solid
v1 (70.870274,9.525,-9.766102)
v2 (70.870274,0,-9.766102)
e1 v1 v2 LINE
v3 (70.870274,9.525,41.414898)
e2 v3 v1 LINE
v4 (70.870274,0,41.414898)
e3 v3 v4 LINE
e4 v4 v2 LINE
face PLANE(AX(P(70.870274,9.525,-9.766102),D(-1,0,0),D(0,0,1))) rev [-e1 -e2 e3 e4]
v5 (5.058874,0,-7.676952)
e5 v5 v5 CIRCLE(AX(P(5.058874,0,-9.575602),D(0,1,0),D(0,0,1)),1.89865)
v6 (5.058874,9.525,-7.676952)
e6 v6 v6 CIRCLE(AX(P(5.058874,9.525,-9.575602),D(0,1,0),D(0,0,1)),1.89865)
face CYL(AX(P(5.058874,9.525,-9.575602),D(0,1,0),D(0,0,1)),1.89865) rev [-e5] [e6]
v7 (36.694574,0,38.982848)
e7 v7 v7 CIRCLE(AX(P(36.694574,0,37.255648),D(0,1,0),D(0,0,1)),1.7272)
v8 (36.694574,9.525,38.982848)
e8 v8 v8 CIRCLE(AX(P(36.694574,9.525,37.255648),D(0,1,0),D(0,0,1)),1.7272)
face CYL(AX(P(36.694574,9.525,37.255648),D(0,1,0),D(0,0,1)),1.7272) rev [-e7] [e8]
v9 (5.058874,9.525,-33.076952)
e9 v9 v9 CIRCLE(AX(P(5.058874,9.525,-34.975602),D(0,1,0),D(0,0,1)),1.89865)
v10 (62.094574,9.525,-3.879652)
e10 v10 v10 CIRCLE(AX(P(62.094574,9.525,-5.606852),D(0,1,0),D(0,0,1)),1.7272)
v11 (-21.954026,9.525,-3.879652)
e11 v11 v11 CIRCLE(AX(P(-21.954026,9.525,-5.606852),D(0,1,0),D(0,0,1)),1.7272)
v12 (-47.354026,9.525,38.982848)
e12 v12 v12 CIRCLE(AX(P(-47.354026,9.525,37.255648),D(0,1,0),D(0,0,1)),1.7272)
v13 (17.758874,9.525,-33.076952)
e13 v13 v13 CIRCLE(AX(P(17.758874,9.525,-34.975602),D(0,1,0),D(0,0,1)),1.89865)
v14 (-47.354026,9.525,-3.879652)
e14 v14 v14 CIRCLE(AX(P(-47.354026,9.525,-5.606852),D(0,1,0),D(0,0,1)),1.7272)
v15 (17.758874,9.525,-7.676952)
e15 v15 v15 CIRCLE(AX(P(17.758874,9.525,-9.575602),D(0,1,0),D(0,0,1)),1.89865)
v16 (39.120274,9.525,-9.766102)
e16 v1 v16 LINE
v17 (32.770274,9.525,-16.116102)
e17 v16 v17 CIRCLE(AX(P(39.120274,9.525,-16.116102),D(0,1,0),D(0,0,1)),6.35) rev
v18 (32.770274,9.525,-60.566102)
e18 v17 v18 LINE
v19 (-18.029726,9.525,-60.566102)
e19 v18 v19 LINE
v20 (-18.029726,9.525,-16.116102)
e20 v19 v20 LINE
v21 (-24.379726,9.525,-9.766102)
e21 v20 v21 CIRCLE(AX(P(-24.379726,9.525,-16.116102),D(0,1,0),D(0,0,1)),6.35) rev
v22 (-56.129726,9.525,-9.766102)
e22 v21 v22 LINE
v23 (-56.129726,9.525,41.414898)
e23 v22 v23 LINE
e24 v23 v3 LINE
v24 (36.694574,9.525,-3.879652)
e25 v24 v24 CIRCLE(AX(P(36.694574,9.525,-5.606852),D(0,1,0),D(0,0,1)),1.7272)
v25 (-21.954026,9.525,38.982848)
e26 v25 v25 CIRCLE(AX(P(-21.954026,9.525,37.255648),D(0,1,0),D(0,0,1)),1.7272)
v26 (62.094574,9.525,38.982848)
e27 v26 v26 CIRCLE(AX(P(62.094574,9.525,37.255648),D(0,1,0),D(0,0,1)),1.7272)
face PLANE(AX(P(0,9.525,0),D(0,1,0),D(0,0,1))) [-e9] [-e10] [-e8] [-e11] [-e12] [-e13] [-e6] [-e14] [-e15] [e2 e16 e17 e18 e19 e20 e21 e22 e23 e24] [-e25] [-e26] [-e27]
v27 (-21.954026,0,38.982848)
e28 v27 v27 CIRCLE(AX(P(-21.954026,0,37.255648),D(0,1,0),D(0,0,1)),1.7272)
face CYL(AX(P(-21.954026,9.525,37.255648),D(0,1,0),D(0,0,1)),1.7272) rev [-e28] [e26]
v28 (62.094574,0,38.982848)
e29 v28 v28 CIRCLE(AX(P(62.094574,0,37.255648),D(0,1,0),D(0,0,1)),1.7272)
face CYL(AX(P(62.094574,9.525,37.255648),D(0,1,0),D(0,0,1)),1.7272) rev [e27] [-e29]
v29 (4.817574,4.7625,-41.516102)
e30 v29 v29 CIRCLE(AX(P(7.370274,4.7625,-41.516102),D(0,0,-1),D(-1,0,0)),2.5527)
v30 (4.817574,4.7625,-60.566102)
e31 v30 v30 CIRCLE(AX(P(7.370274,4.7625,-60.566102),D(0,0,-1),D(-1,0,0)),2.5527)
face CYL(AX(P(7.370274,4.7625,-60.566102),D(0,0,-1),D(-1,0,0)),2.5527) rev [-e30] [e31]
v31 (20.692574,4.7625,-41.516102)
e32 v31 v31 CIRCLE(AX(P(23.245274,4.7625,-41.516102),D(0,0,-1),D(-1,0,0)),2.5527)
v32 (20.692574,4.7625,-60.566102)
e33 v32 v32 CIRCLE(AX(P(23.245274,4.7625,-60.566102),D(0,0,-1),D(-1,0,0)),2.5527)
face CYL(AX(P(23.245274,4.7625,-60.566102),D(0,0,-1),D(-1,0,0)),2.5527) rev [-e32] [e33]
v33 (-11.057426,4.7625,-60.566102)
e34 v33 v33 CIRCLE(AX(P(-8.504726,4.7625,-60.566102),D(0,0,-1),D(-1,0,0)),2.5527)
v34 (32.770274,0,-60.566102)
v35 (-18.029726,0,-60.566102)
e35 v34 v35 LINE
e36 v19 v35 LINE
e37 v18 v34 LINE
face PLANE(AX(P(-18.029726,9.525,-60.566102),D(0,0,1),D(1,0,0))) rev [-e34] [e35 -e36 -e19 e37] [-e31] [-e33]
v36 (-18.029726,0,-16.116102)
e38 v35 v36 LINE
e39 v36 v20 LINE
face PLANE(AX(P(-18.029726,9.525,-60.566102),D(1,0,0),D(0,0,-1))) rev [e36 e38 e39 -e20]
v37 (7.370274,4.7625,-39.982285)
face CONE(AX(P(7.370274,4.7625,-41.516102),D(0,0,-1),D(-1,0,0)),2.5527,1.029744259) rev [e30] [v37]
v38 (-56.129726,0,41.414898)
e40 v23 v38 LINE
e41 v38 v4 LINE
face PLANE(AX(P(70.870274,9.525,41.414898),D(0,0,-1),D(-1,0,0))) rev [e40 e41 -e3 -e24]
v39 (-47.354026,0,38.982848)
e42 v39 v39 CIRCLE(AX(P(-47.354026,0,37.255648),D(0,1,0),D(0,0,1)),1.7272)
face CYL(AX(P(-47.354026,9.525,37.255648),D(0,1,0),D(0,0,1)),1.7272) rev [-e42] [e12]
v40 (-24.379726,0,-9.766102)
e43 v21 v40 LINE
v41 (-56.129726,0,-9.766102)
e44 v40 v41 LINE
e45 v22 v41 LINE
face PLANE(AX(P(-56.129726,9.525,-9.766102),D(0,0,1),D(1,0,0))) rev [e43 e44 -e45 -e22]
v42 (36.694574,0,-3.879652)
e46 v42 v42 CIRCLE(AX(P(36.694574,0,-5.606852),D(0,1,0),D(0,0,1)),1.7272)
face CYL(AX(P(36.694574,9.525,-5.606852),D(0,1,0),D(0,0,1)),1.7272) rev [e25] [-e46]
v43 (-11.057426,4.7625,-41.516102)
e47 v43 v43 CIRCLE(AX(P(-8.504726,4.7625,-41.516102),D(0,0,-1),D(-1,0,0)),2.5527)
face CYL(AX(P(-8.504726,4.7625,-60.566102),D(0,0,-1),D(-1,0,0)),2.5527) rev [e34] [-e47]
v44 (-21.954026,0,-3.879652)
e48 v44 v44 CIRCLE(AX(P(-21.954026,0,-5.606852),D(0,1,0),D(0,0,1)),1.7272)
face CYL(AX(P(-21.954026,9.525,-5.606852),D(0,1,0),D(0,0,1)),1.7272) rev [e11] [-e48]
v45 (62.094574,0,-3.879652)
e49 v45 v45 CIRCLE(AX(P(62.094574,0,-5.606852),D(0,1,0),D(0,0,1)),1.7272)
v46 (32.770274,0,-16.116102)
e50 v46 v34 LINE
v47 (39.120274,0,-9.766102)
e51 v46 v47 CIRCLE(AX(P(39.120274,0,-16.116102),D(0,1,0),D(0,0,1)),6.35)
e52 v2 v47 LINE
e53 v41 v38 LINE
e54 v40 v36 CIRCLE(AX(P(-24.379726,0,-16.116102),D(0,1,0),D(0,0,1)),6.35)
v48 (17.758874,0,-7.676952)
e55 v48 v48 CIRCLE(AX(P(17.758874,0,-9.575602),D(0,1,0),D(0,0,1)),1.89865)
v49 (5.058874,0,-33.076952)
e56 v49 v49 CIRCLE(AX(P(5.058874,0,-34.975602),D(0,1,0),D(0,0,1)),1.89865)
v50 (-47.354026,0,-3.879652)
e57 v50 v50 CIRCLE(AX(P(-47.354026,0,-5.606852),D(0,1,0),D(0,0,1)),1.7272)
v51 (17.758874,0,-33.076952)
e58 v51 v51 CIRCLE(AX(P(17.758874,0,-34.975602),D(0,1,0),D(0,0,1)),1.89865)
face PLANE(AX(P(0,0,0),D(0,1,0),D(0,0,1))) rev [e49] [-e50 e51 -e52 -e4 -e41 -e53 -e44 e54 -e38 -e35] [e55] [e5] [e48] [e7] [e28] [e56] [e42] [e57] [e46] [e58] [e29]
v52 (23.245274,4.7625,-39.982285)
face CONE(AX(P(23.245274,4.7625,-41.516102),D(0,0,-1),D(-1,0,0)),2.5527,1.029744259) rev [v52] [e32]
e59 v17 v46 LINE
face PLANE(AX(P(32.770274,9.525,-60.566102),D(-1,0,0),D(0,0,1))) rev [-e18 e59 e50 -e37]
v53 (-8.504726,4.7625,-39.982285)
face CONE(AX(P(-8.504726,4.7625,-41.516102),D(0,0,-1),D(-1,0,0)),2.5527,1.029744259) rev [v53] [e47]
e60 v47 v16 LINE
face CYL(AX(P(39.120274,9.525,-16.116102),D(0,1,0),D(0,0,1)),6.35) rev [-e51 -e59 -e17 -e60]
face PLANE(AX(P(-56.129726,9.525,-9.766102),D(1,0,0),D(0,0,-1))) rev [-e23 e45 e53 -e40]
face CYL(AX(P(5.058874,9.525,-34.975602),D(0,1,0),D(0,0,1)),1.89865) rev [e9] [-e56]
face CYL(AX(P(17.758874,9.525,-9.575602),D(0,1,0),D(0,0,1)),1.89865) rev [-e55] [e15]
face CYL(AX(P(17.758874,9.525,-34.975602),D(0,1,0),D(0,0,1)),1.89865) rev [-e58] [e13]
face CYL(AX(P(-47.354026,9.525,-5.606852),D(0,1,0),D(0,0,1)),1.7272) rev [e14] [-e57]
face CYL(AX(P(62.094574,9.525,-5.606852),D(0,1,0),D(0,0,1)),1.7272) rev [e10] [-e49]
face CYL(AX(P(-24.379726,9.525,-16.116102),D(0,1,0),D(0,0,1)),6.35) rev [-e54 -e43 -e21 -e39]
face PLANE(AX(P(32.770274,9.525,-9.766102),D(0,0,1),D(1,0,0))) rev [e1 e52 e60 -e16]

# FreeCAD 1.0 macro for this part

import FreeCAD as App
import Part
import Sketcher
from FreeCAD import Vector
Q = App.Units.Quantity


def edges_at(feature, points):
    """Names of the edges that pass closest to the given points."""
    edges = feature.Shape.Edges
    near = lambda p: min(range(len(edges)), key=lambda i: edges[i].distToShape(Part.Vertex(*p))[0])
    return sorted({f"Edge{near(p) + 1}" for p in points})

doc = App.newDocument("Part")
body = doc.addObject("PartDesign::Body", "Body")

sketch1 = body.newObject("Sketcher::SketchObject", "Sketch")
sketch1.AttachmentSupport = (doc.getObject("XZ_Plane"), [""])
sketch1.MapMode = "FlatFace"
sketch1.addGeometry([
    Part.LineSegment(Vector(70.870274, -9.766102, 0), Vector(32.770274, -9.766102, 0)),
    Part.LineSegment(Vector(32.770274, -9.766102, 0), Vector(32.770274, -60.566102, 0)),
    Part.LineSegment(Vector(32.770274, -60.566102, 0), Vector(-18.029726, -60.566102, 0)),
    Part.LineSegment(Vector(-18.029726, -60.566102, 0), Vector(-18.029726, -9.766102, 0)),
    Part.LineSegment(Vector(-18.029726, -9.766102, 0), Vector(-56.129726, -9.766102, 0)),
    Part.LineSegment(Vector(-56.129726, -9.766102, 0), Vector(-56.129726, 41.414898, 0)),
    Part.LineSegment(Vector(-56.129726, 41.414898, 0), Vector(70.870274, 41.414898, 0)),
    Part.LineSegment(Vector(70.870274, 41.414898, 0), Vector(70.870274, -9.766102, 0)),
], False)
sketch1.addConstraint([
    Sketcher.Constraint("Coincident", 0, 2, 1, 1),
    Sketcher.Constraint("Coincident", 1, 2, 2, 1),
    Sketcher.Constraint("Coincident", 2, 2, 3, 1),
    Sketcher.Constraint("Coincident", 3, 2, 4, 1),
    Sketcher.Constraint("Coincident", 4, 2, 5, 1),
    Sketcher.Constraint("Coincident", 5, 2, 6, 1),
    Sketcher.Constraint("Coincident", 6, 2, 7, 1),
    Sketcher.Constraint("Coincident", 7, 2, 0, 1),
    Sketcher.Constraint("Horizontal", 0),
    Sketcher.Constraint("Vertical", 1),
    Sketcher.Constraint("Horizontal", 2),
    Sketcher.Constraint("Vertical", 3),
    Sketcher.Constraint("Horizontal", 4),
    Sketcher.Constraint("Vertical", 5),
    Sketcher.Constraint("Horizontal", 6),
    Sketcher.Constraint("Vertical", 7),
    Sketcher.Constraint("Horizontal", 0, 2, 3, 2),
    Sketcher.Constraint("Equal", 0, 4),
    Sketcher.Constraint("Equal", 2, 1),
    Sketcher.Constraint("DistanceX", 2, 2, 2, 1, Q("2 in")),
    Sketcher.Constraint("DistanceX", 6, 1, 6, 2, Q("5 in")),
    Sketcher.Constraint("DistanceY", 5, 1, 5, 2, Q("2.015 in")),
    Sketcher.Constraint("DistanceY", 0, 2, -1, 1, Q("9.766102 mm")),
    Sketcher.Constraint("DistanceX", -1, 1, 0, 2, Q("32.770274 mm")),
])
pad1 = body.newObject("PartDesign::Pad", "Pad")
pad1.Profile = sketch1
pad1.Length = Q("0.375 in")
pad1.Reversed = True

sketch2 = body.newObject("Sketcher::SketchObject", "Sketch001")
sketch2.AttachmentSupport = (doc.getObject("XZ_Plane"), [""])
sketch2.MapMode = "FlatFace"
sketch2.AttachmentOffset = App.Placement(Vector(0, 0, -0.375 * 25.4), App.Rotation())
sketch2.addGeometry([
    Part.Circle(Vector(-47.354026, -5.606852, 0), Vector(0, 0, 1), 1.7272),
    Part.Circle(Vector(-47.354026, 37.255648, 0), Vector(0, 0, 1), 1.7272),
    Part.Circle(Vector(-21.954026, 37.255648, 0), Vector(0, 0, 1), 1.7272),
    Part.Circle(Vector(-21.954026, -5.606852, 0), Vector(0, 0, 1), 1.7272),
    Part.Circle(Vector(62.094574, -5.606852, 0), Vector(0, 0, 1), 1.7272),
    Part.Circle(Vector(62.094574, 37.255648, 0), Vector(0, 0, 1), 1.7272),
    Part.Circle(Vector(36.694574, 37.255648, 0), Vector(0, 0, 1), 1.7272),
    Part.Circle(Vector(36.694574, -5.606852, 0), Vector(0, 0, 1), 1.7272),
], False)
sketch2.addConstraint([
    Sketcher.Constraint("Equal", 0, 1),
    Sketcher.Constraint("Equal", 1, 2),
    Sketcher.Constraint("Equal", 2, 3),
    Sketcher.Constraint("Equal", 3, 4),
    Sketcher.Constraint("Equal", 4, 5),
    Sketcher.Constraint("Equal", 5, 6),
    Sketcher.Constraint("Equal", 6, 7),
    Sketcher.Constraint("Horizontal", 1, 3, 2, 3),
    Sketcher.Constraint("Horizontal", 0, 3, 3, 3),
    Sketcher.Constraint("Horizontal", 3, 3, 4, 3),
    Sketcher.Constraint("Horizontal", 2, 3, 5, 3),
    Sketcher.Constraint("Horizontal", 5, 3, 6, 3),
    Sketcher.Constraint("Horizontal", 4, 3, 7, 3),
    Sketcher.Constraint("Vertical", 0, 3, 1, 3),
    Sketcher.Constraint("Vertical", 2, 3, 3, 3),
    Sketcher.Constraint("Vertical", 4, 3, 5, 3),
    Sketcher.Constraint("Vertical", 6, 3, 7, 3),
    Sketcher.Constraint("Diameter", 0, Q("0.136 in")),
    Sketcher.Constraint("DistanceX", 1, 3, 2, 3, Q("1 in")),
    Sketcher.Constraint("DistanceX", 6, 3, 5, 3, Q("1 in")),
    Sketcher.Constraint("DistanceY", 0, 3, 1, 3, Q("1.6875 in")),
    Sketcher.Constraint("DistanceX", 3, 3, 4, 3, Q("3.309 in")),
    Sketcher.Constraint("DistanceY", 0, 3, -1, 1, Q("5.606852 mm")),
    Sketcher.Constraint("DistanceX", 0, 3, -1, 1, Q("47.354026 mm")),
])
doc.recompute()
hole = body.newObject("PartDesign::Hole", "Hole")
hole.Profile = sketch2
hole.ThreadType = "None"
hole.Diameter = Q("0.136 in")
hole.DepthType = "ThroughAll"
hole.Reversed = True

sketch3 = body.newObject("Sketcher::SketchObject", "Sketch002")
sketch3.AttachmentSupport = (doc.getObject("XZ_Plane"), [""])
sketch3.MapMode = "FlatFace"
sketch3.AttachmentOffset = App.Placement(Vector(0, 0, -0.375 * 25.4), App.Rotation())
sketch3.addGeometry([
    Part.Circle(Vector(5.058874, -34.975602, 0), Vector(0, 0, 1), 1.89865),
    Part.Circle(Vector(17.758874, -34.975602, 0), Vector(0, 0, 1), 1.89865),
    Part.Circle(Vector(5.058874, -9.575602, 0), Vector(0, 0, 1), 1.89865),
    Part.Circle(Vector(17.758874, -9.575602, 0), Vector(0, 0, 1), 1.89865),
], False)
sketch3.addConstraint([
    Sketcher.Constraint("Equal", 0, 1),
    Sketcher.Constraint("Equal", 1, 2),
    Sketcher.Constraint("Equal", 2, 3),
    Sketcher.Constraint("Horizontal", 0, 3, 1, 3),
    Sketcher.Constraint("Horizontal", 2, 3, 3, 3),
    Sketcher.Constraint("Vertical", 0, 3, 2, 3),
    Sketcher.Constraint("Vertical", 1, 3, 3, 3),
    Sketcher.Constraint("DistanceY", 0, 3, 2, 3, Q("1 in")),
    Sketcher.Constraint("Diameter", 0, Q("0.1495 in")),
    Sketcher.Constraint("DistanceX", 0, 3, 1, 3, Q("0.5 in")),
    Sketcher.Constraint("DistanceY", 0, 3, -1, 1, Q("34.975602 mm")),
    Sketcher.Constraint("DistanceX", -1, 1, 0, 3, Q("5.058874 mm")),
])
doc.recompute()
hole2 = body.newObject("PartDesign::Hole", "Hole001")
hole2.Profile = sketch3
hole2.ThreadType = "None"
hole2.Diameter = Q("0.1495 in")
hole2.DepthType = "ThroughAll"
hole2.Reversed = True

sketch4 = body.newObject("Sketcher::SketchObject", "Sketch003")
sketch4.AttachmentSupport = (doc.getObject("XY_Plane"), [""])
sketch4.MapMode = "FlatFace"
sketch4.AttachmentOffset = App.Placement(Vector(0, 0, -60.566102), App.Rotation())
sketch4.addGeometry([
    Part.Circle(Vector(-8.504726, 4.7625, 0), Vector(0, 0, 1), 2.5527),
    Part.Circle(Vector(7.370274, 4.7625, 0), Vector(0, 0, 1), 2.5527),
    Part.Circle(Vector(23.245274, 4.7625, 0), Vector(0, 0, 1), 2.5527),
], False)
sketch4.addConstraint([
    Sketcher.Constraint("Equal", 0, 1),
    Sketcher.Constraint("Equal", 1, 2),
    Sketcher.Constraint("Horizontal", 0, 3, 1, 3),
    Sketcher.Constraint("Horizontal", 1, 3, 2, 3),
    Sketcher.Constraint("Diameter", 0, Q("0.201 in")),
    Sketcher.Constraint("DistanceX", 0, 3, 2, 3, Q("1.25 in")),
    Sketcher.Constraint("DistanceY", -1, 1, 0, 3, Q("0.1875 in")),
    Sketcher.Constraint("DistanceX", 0, 3, 1, 3, Q("0.625 in")),
    Sketcher.Constraint("DistanceX", 0, 3, -1, 1, Q("8.504726 mm")),
])
doc.recompute()
hole3 = body.newObject("PartDesign::Hole", "Hole002")
hole3.Profile = sketch4
hole3.ThreadType = "None"
hole3.Diameter = Q("0.201 in")
hole3.DepthType = "Dimension"
hole3.Depth = Q("0.75 in")
hole3.DrillPoint = "Angled"
hole3.DrillPointAngle = 118
hole3.Reversed = True
doc.recompute()

fillet = body.newObject("PartDesign::Fillet", "Fillet")
fillet.Base = (hole3, edges_at(hole3, [(32.77, 4.763, -9.766), (-18.03, 4.763, -9.766)]))
fillet.Radius = Q("0.25 in")

doc.recompute()
